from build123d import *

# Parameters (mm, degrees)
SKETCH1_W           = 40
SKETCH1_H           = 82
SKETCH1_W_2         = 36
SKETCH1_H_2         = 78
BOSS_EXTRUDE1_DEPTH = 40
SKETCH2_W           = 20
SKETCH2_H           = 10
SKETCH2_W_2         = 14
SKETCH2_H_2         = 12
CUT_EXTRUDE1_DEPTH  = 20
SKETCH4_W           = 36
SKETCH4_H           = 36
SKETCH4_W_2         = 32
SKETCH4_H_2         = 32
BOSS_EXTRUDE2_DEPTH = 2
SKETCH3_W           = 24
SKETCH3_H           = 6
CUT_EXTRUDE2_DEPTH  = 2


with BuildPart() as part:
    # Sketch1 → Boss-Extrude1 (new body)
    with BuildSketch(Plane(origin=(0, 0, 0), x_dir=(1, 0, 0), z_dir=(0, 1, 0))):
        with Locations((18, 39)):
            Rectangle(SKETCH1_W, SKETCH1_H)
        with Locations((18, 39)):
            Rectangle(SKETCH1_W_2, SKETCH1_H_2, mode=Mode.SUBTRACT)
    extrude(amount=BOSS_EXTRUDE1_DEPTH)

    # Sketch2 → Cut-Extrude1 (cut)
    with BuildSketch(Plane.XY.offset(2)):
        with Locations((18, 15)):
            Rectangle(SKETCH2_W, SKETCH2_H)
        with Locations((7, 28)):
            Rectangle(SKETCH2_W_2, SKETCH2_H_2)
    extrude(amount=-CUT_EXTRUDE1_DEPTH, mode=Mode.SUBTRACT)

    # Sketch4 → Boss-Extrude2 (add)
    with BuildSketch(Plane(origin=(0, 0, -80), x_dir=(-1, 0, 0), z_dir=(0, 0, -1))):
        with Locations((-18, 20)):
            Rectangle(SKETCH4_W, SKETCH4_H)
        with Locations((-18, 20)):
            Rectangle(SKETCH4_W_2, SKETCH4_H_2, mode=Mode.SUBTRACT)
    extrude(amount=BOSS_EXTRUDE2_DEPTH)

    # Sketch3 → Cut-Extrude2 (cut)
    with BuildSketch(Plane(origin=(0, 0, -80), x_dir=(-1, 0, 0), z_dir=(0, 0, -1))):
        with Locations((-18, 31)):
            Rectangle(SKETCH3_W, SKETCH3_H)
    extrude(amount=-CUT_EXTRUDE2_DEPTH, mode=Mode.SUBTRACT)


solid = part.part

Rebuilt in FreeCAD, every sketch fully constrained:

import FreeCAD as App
import Part
import Sketcher

doc = App.newDocument("Part")
params = doc.addObject("Spreadsheet::Sheet", "Params")
for row, (alias, value) in enumerate([
    ("sketch1_width", "40 mm"),
    ("sketch1_width2", "36 mm"),
    ("sketch1_height", "82 mm"),
    ("sketch1_height2", "78 mm"),
    ("pad1_length", "40 mm"),
    ("sketch2_width", "20 mm"),
    ("sketch2_width2", "14 mm"),
    ("sketch2_height", "10 mm"),
    ("sketch2_height2", "12 mm"),
    ("pocket1_length", "20 mm"),
    ("sketch3_width", "36 mm"),
    ("sketch3_width2", "32 mm"),
    ("pad2_length", "2 mm"),
    ("sketch4_width", "24 mm"),
    ("sketch4_height", "6 mm"),
    ("pocket2_length", "2 mm"),
], start=1):
    params.set(f"A{row}", alias)
    params.set(f"B{row}", "=" + value)
    params.setAlias(f"B{row}", alias)

body = doc.addObject("PartDesign::Body", "Body")

sketch1 = doc.addObject("Sketcher::SketchObject", "Sketch")
body.addObject(sketch1)
sketch1.AttachmentSupport = (doc.XZ_Plane, [""])
sketch1.MapMode = "FlatFace"
sketch1.addGeometry([
    Part.LineSegment(App.Vector(-2, -80, 0), App.Vector(-2, 2, 0)),
    Part.LineSegment(App.Vector(-2, 2, 0), App.Vector(38, 2, 0)),
    Part.LineSegment(App.Vector(38, 2, 0), App.Vector(38, -80, 0)),
    Part.LineSegment(App.Vector(38, -80, 0), App.Vector(-2, -80, 0)),
    Part.LineSegment(App.Vector(36, 0, 0), App.Vector(0, 0, 0)),
    Part.LineSegment(App.Vector(0, 0, 0), App.Vector(0, -78, 0)),
    Part.LineSegment(App.Vector(0, -78, 0), App.Vector(36, -78, 0)),
    Part.LineSegment(App.Vector(36, -78, 0), App.Vector(36, 0, 0)),
], False)
sketch1.addConstraint([
    Sketcher.Constraint("Coincident", 0, 2, 1, 1),
    Sketcher.Constraint("Coincident", 1, 2, 2, 1),
    Sketcher.Constraint("Coincident", 2, 2, 3, 1),
    Sketcher.Constraint("Coincident", 3, 2, 0, 1),
    Sketcher.Constraint("Coincident", 4, 2, 5, 1),
    Sketcher.Constraint("Coincident", 5, 2, 6, 1),
    Sketcher.Constraint("Coincident", 6, 2, 7, 1),
    Sketcher.Constraint("Coincident", 7, 2, 4, 1),
    Sketcher.Constraint("Vertical", 0),
    Sketcher.Constraint("Horizontal", 1),
    Sketcher.Constraint("Vertical", 2),
    Sketcher.Constraint("Horizontal", 3),
    Sketcher.Constraint("Horizontal", 4),
    Sketcher.Constraint("Vertical", 5),
    Sketcher.Constraint("Horizontal", 6),
    Sketcher.Constraint("Vertical", 7),
    Sketcher.Constraint("Coincident", 4, 2, -1, 1),
    Sketcher.Constraint("DistanceX", 1, 1, 1, 2, 40.0),
    Sketcher.Constraint("DistanceX", 4, 2, 4, 1, 36.0),
    Sketcher.Constraint("DistanceY", 0, 1, 0, 2, 82.0),
    Sketcher.Constraint("DistanceY", 5, 2, 5, 1, 78.0),
    Sketcher.Constraint("DistanceX", 0, 2, -1, 1, 2.0),
    Sketcher.Constraint("DistanceY", -1, 1, 0, 2, 2.0),
])
sketch1.setExpression("Constraints[17]", "Params.sketch1_width")
sketch1.setExpression("Constraints[18]", "Params.sketch1_width2")
sketch1.setExpression("Constraints[19]", "Params.sketch1_height")
sketch1.setExpression("Constraints[20]", "Params.sketch1_height2")
pad1 = doc.addObject("PartDesign::Pad", "Pad")
body.addObject(pad1)
pad1.Profile = sketch1
pad1.setExpression("Length", "Params.pad1_length")
pad1.Reversed = True

sketch2 = doc.addObject("Sketcher::SketchObject", "Sketch001")
body.addObject(sketch2)
sketch2.AttachmentSupport = (doc.XY_Plane, [""])
sketch2.MapMode = "FlatFace"
sketch2.AttachmentOffset = App.Placement(App.Vector(0, 0, 2), App.Rotation())
sketch2.addGeometry([
    Part.LineSegment(App.Vector(8, 20, 0), App.Vector(8, 10, 0)),
    Part.LineSegment(App.Vector(8, 10, 0), App.Vector(28, 10, 0)),
    Part.LineSegment(App.Vector(28, 10, 0), App.Vector(28, 20, 0)),
    Part.LineSegment(App.Vector(28, 20, 0), App.Vector(8, 20, 0)),
    Part.LineSegment(App.Vector(0, 34, 0), App.Vector(0, 22, 0)),
    Part.LineSegment(App.Vector(0, 22, 0), App.Vector(14, 22, 0)),
    Part.LineSegment(App.Vector(14, 22, 0), App.Vector(14, 34, 0)),
    Part.LineSegment(App.Vector(14, 34, 0), App.Vector(0, 34, 0)),
], False)
sketch2.addConstraint([
    Sketcher.Constraint("Coincident", 0, 2, 1, 1),
    Sketcher.Constraint("Coincident", 1, 2, 2, 1),
    Sketcher.Constraint("Coincident", 2, 2, 3, 1),
    Sketcher.Constraint("Coincident", 3, 2, 0, 1),
    Sketcher.Constraint("Coincident", 4, 2, 5, 1),
    Sketcher.Constraint("Coincident", 5, 2, 6, 1),
    Sketcher.Constraint("Coincident", 6, 2, 7, 1),
    Sketcher.Constraint("Coincident", 7, 2, 4, 1),
    Sketcher.Constraint("Vertical", 0),
    Sketcher.Constraint("Horizontal", 1),
    Sketcher.Constraint("Vertical", 2),
    Sketcher.Constraint("Horizontal", 3),
    Sketcher.Constraint("Vertical", 4),
    Sketcher.Constraint("Horizontal", 5),
    Sketcher.Constraint("Vertical", 6),
    Sketcher.Constraint("Horizontal", 7),
    Sketcher.Constraint("PointOnObject", 4, 2, -2),
    Sketcher.Constraint("DistanceX", 1, 1, 1, 2, 20.0),
    Sketcher.Constraint("DistanceX", 5, 1, 5, 2, 14.0),
    Sketcher.Constraint("DistanceY", 0, 2, 0, 1, 10.0),
    Sketcher.Constraint("DistanceY", 4, 2, 4, 1, 12.0),
    Sketcher.Constraint("DistanceX", -1, 1, 0, 2, 8.0),
    Sketcher.Constraint("DistanceY", -1, 1, 0, 2, 10.0),
    Sketcher.Constraint("DistanceY", -1, 1, 4, 2, 22.0),
])
sketch2.setExpression("Constraints[17]", "Params.sketch2_width")
sketch2.setExpression("Constraints[18]", "Params.sketch2_width2")
sketch2.setExpression("Constraints[19]", "Params.sketch2_height")
sketch2.setExpression("Constraints[20]", "Params.sketch2_height2")
pocket1 = doc.addObject("PartDesign::Pocket", "Pocket")
body.addObject(pocket1)
pocket1.Profile = sketch2
pocket1.setExpression("Length", "Params.pocket1_length")

sketch3 = doc.addObject("Sketcher::SketchObject", "Sketch002")
body.addObject(sketch3)
sketch3.AttachmentSupport = (doc.XY_Plane, [""])
sketch3.MapMode = "FlatFace"
sketch3.AttachmentOffset = App.Placement(App.Vector(0, 0, -80), App.Rotation())
sketch3.addGeometry([
    Part.LineSegment(App.Vector(36, 38, 0), App.Vector(36, 2, 0)),
    Part.LineSegment(App.Vector(36, 2, 0), App.Vector(0, 2, 0)),
    Part.LineSegment(App.Vector(0, 2, 0), App.Vector(0, 38, 0)),
    Part.LineSegment(App.Vector(0, 38, 0), App.Vector(36, 38, 0)),
    Part.LineSegment(App.Vector(2, 4, 0), App.Vector(34, 4, 0)),
    Part.LineSegment(App.Vector(34, 4, 0), App.Vector(34, 36, 0)),
    Part.LineSegment(App.Vector(34, 36, 0), App.Vector(2, 36, 0)),
    Part.LineSegment(App.Vector(2, 36, 0), App.Vector(2, 4, 0)),
], False)
sketch3.addConstraint([
    Sketcher.Constraint("Coincident", 0, 2, 1, 1),
    Sketcher.Constraint("Coincident", 1, 2, 2, 1),
    Sketcher.Constraint("Coincident", 2, 2, 3, 1),
    Sketcher.Constraint("Coincident", 3, 2, 0, 1),
    Sketcher.Constraint("Coincident", 4, 2, 5, 1),
    Sketcher.Constraint("Coincident", 5, 2, 6, 1),
    Sketcher.Constraint("Coincident", 6, 2, 7, 1),
    Sketcher.Constraint("Coincident", 7, 2, 4, 1),
    Sketcher.Constraint("Vertical", 0),
    Sketcher.Constraint("Horizontal", 1),
    Sketcher.Constraint("Vertical", 2),
    Sketcher.Constraint("Horizontal", 3),
    Sketcher.Constraint("Horizontal", 4),
    Sketcher.Constraint("Vertical", 5),
    Sketcher.Constraint("Horizontal", 6),
    Sketcher.Constraint("Vertical", 7),
    Sketcher.Constraint("PointOnObject", 1, 2, -2),
    Sketcher.Constraint("Equal", 3, 0),
    Sketcher.Constraint("Equal", 6, 5),
    Sketcher.Constraint("DistanceX", 1, 2, 1, 1, 36.0),
    Sketcher.Constraint("DistanceX", 4, 1, 4, 2, 32.0),
    Sketcher.Constraint("DistanceY", -1, 1, 0, 2, 2.0),
    Sketcher.Constraint("DistanceX", -1, 1, 4, 2, 34.0),
    Sketcher.Constraint("DistanceY", -1, 1, 4, 2, 4.0),
])
sketch3.setExpression("Constraints[19]", "Params.sketch3_width")
sketch3.setExpression("Constraints[20]", "Params.sketch3_width2")
pad2 = doc.addObject("PartDesign::Pad", "Pad001")
body.addObject(pad2)
pad2.Profile = sketch3
pad2.setExpression("Length", "Params.pad2_length")
pad2.Reversed = True

sketch4 = doc.addObject("Sketcher::SketchObject", "Sketch003")
body.addObject(sketch4)
sketch4.AttachmentSupport = (doc.XY_Plane, [""])
sketch4.MapMode = "FlatFace"
sketch4.AttachmentOffset = App.Placement(App.Vector(0, 0, -80), App.Rotation())
sketch4.addGeometry([
    Part.LineSegment(App.Vector(30, 34, 0), App.Vector(30, 28, 0)),
    Part.LineSegment(App.Vector(30, 28, 0), App.Vector(6, 28, 0)),
    Part.LineSegment(App.Vector(6, 28, 0), App.Vector(6, 34, 0)),
    Part.LineSegment(App.Vector(6, 34, 0), App.Vector(30, 34, 0)),
], False)
sketch4.addConstraint([
    Sketcher.Constraint("Coincident", 0, 2, 1, 1),
    Sketcher.Constraint("Coincident", 1, 2, 2, 1),
    Sketcher.Constraint("Coincident", 2, 2, 3, 1),
    Sketcher.Constraint("Coincident", 3, 2, 0, 1),
    Sketcher.Constraint("Vertical", 0),
    Sketcher.Constraint("Horizontal", 1),
    Sketcher.Constraint("Vertical", 2),
    Sketcher.Constraint("Horizontal", 3),
    Sketcher.Constraint("DistanceX", 1, 2, 1, 1, 24.0),
    Sketcher.Constraint("DistanceY", 0, 2, 0, 1, 6.0),
    Sketcher.Constraint("DistanceX", -1, 1, 0, 2, 30.0),
    Sketcher.Constraint("DistanceY", -1, 1, 0, 2, 28.0),
])
sketch4.setExpression("Constraints[8]", "Params.sketch4_width")
sketch4.setExpression("Constraints[9]", "Params.sketch4_height")
pocket2 = doc.addObject("PartDesign::Pocket", "Pocket001")
body.addObject(pocket2)
pocket2.Profile = sketch4
pocket2.setExpression("Length", "Params.pocket2_length")
pocket2.Reversed = True

doc.recompute()
